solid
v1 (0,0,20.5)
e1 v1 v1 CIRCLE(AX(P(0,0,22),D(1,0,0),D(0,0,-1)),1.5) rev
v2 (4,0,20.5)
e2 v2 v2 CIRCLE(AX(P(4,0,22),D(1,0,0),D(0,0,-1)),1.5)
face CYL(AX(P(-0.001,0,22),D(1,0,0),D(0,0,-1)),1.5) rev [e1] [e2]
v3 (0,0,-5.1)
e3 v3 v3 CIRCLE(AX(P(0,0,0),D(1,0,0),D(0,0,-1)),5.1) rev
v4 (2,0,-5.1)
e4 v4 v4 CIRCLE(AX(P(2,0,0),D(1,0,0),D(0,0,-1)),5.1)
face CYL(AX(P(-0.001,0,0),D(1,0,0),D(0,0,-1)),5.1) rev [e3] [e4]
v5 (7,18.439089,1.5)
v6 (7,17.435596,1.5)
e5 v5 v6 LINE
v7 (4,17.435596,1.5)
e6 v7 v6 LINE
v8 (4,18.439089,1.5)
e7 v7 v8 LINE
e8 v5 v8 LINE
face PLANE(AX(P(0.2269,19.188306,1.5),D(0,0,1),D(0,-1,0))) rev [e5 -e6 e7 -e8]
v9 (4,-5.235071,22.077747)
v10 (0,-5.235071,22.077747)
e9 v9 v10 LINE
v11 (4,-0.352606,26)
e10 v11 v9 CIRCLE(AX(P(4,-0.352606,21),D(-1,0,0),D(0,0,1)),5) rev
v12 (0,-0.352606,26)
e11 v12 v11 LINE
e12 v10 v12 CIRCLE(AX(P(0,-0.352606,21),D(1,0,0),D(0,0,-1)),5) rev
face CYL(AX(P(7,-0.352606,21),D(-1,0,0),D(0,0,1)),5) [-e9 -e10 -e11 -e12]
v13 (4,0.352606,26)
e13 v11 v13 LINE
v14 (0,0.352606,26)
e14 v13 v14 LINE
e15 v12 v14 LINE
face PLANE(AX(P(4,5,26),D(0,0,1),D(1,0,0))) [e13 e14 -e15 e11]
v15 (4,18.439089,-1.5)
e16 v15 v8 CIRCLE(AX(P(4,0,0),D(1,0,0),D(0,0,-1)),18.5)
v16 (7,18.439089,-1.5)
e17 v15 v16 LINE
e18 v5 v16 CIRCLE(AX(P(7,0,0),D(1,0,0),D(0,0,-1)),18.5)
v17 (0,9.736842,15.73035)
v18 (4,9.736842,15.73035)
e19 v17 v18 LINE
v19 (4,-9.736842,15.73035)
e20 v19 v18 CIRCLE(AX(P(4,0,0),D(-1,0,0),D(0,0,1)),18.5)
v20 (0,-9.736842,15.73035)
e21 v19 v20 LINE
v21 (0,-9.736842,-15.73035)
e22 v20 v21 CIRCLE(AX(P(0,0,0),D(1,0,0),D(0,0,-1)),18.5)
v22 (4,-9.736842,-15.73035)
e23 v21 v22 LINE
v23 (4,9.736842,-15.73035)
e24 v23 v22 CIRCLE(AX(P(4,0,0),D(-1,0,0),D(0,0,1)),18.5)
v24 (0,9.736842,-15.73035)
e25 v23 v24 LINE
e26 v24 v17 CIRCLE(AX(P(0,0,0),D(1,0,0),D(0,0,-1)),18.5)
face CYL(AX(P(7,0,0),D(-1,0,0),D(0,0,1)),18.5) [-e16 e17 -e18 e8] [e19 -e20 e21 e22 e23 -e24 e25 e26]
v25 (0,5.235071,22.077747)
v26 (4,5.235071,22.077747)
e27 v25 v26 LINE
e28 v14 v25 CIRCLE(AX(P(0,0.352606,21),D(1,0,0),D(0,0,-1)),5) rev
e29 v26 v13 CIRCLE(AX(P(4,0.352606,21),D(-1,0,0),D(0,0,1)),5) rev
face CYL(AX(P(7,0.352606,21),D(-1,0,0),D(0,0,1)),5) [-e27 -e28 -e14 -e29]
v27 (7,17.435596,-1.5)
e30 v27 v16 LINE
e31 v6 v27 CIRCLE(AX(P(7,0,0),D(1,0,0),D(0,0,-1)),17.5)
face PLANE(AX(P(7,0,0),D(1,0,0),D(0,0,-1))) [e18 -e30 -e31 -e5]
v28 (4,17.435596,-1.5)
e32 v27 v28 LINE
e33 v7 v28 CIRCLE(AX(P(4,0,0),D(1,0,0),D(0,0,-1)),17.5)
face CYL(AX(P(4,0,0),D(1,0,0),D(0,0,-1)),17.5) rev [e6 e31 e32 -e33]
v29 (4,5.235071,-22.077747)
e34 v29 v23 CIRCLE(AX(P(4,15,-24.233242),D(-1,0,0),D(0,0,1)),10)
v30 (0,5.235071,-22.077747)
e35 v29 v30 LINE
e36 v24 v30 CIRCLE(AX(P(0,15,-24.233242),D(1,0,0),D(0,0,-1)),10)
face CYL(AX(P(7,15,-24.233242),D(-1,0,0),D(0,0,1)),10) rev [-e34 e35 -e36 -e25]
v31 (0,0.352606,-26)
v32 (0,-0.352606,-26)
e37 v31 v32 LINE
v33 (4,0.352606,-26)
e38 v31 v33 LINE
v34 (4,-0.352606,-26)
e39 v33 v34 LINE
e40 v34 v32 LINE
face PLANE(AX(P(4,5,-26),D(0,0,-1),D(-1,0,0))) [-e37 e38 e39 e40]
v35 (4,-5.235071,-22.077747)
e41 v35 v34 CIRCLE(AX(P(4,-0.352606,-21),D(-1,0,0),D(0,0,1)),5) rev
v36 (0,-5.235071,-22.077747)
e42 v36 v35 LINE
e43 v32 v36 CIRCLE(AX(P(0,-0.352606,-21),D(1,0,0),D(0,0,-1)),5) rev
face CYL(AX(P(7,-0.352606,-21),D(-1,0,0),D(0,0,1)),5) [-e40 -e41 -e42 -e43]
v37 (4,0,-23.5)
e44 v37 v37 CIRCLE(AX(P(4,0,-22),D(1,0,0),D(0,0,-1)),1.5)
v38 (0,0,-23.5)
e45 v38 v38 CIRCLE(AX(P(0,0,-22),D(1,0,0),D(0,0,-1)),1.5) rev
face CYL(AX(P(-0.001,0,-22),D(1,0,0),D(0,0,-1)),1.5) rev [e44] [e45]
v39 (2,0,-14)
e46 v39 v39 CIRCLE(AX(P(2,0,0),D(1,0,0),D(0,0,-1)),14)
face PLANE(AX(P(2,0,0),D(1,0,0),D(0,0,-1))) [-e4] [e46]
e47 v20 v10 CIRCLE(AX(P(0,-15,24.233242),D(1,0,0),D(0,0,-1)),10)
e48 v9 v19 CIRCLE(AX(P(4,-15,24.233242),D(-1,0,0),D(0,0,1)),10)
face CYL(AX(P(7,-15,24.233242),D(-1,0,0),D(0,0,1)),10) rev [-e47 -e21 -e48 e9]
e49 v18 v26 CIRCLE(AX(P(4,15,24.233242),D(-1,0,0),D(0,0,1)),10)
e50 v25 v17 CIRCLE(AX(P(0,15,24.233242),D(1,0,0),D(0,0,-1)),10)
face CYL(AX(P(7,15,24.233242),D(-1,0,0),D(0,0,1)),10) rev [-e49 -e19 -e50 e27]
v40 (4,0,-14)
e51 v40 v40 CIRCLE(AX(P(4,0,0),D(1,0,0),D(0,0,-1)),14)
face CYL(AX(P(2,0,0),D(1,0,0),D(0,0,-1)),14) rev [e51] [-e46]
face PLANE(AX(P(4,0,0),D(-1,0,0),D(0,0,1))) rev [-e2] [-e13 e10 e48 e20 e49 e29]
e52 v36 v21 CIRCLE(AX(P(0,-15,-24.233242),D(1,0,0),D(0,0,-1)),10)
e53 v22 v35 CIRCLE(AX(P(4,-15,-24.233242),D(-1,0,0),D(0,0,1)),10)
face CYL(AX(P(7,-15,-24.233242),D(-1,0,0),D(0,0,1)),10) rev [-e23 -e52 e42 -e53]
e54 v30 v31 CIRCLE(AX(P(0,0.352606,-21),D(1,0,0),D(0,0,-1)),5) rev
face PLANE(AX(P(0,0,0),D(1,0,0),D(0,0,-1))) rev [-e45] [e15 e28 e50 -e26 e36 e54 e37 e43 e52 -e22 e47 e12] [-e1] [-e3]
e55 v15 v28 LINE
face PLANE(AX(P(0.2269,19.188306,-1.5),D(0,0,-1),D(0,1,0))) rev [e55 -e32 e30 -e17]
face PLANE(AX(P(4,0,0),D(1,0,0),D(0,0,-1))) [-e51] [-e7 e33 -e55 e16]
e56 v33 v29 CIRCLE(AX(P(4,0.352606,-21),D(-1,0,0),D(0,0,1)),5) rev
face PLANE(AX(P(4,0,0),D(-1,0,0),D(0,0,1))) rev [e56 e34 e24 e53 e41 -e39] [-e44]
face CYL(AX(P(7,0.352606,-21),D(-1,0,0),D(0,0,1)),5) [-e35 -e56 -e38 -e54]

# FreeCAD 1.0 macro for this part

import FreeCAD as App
import Part
import Sketcher


def edges_at(feature, points):
    """Names of the edges that pass closest to the given points."""
    edges = feature.Shape.Edges
    near = lambda p: min(range(len(edges)), key=lambda i: edges[i].distToShape(Part.Vertex(*p))[0])
    return sorted({f"Edge{near(p) + 1}" for p in points})

doc = App.newDocument("Part")
params = doc.addObject("Spreadsheet::Sheet", "Params")
for row, (alias, value) in enumerate([
    ("sketch1_diameter", "37 mm"),
    ("pad1_length", "7 mm"),
    ("sketch2_width", "10 mm"),
    ("sketch2_height", "52 mm"),
    ("pad2_length", "4 mm"),
    ("sketch3_diameter", "35 mm"),
    ("pocket1_length", "3 mm"),
    ("sketch4_diameter", "28 mm"),
    ("pocket2_length", "2 mm"),
    ("sketch5_diameter", "10.2 mm"),
    ("sketch6_diameter", "3 mm"),
    ("sketch7_diameter", "3 mm"),
    ("fillet_radius", "10 mm"),
    ("fillet2_radius", "5 mm"),
    ("sketch8_height", "3 mm"),
    ("pocket6_length", "3 mm"),
], start=1):
    params.set(f"A{row}", alias)
    params.set(f"B{row}", "=" + value)
    params.setAlias(f"B{row}", alias)

body = doc.addObject("PartDesign::Body", "Body")

sketch1 = doc.addObject("Sketcher::SketchObject", "Sketch")
body.addObject(sketch1)
sketch1.AttachmentSupport = (doc.YZ_Plane, [""])
sketch1.MapMode = "FlatFace"
sketch1.addGeometry(Part.Circle(App.Vector(0, 0, 0), App.Vector(0, 0, 1), 18), False)
sketch1.addConstraint([
    Sketcher.Constraint("Coincident", 0, 3, -1, 1),
    Sketcher.Constraint("Diameter", 0, 37.0),
])
sketch1.setExpression("Constraints[1]", "Params.sketch1_diameter")
pad1 = doc.addObject("PartDesign::Pad", "Pad")
body.addObject(pad1)
pad1.Profile = sketch1
pad1.setExpression("Length", "Params.pad1_length")

sketch2 = doc.addObject("Sketcher::SketchObject", "Sketch001")
body.addObject(sketch2)
sketch2.AttachmentSupport = (doc.YZ_Plane, [""])
sketch2.MapMode = "FlatFace"
sketch2.addGeometry([
    Part.LineSegment(App.Vector(5, 26, 0), App.Vector(5, -26, 0)),
    Part.LineSegment(App.Vector(5, -26, 0), App.Vector(-5, -26, 0)),
    Part.LineSegment(App.Vector(-5, -26, 0), App.Vector(-5, 26, 0)),
    Part.LineSegment(App.Vector(-5, 26, 0), App.Vector(5, 26, 0)),
], False)
sketch2.addConstraint([
    Sketcher.Constraint("Coincident", 0, 2, 1, 1),
    Sketcher.Constraint("Coincident", 1, 2, 2, 1),
    Sketcher.Constraint("Coincident", 2, 2, 3, 1),
    Sketcher.Constraint("Coincident", 3, 2, 0, 1),
    Sketcher.Constraint("Vertical", 0),
    Sketcher.Constraint("Horizontal", 1),
    Sketcher.Constraint("Vertical", 2),
    Sketcher.Constraint("Horizontal", 3),
    Sketcher.Constraint("Symmetric", 0, 2, 2, 2, -1, 1),
    Sketcher.Constraint("DistanceX", 1, 2, 1, 1, 10.0),
    Sketcher.Constraint("DistanceY", 0, 2, 0, 1, 52.0),
])
sketch2.setExpression("Constraints[9]", "Params.sketch2_width")
sketch2.setExpression("Constraints[10]", "Params.sketch2_height")
pad2 = doc.addObject("PartDesign::Pad", "Pad001")
body.addObject(pad2)
pad2.Profile = sketch2
pad2.setExpression("Length", "Params.pad2_length")

sketch3 = doc.addObject("Sketcher::SketchObject", "Sketch002")
body.addObject(sketch3)
sketch3.AttachmentSupport = (doc.YZ_Plane, [""])
sketch3.MapMode = "FlatFace"
sketch3.AttachmentOffset = App.Placement(App.Vector(0, 0, 7), App.Rotation())
sketch3.addGeometry(Part.Circle(App.Vector(0, 0, 0), App.Vector(0, 0, 1), 18), False)
sketch3.addConstraint([
    Sketcher.Constraint("Coincident", 0, 3, -1, 1),
    Sketcher.Constraint("Diameter", 0, 35.0),
])
sketch3.setExpression("Constraints[1]", "Params.sketch3_diameter")
pocket1 = doc.addObject("PartDesign::Pocket", "Pocket")
body.addObject(pocket1)
pocket1.Profile = sketch3
pocket1.setExpression("Length", "Params.pocket1_length")

sketch4 = doc.addObject("Sketcher::SketchObject", "Sketch003")
body.addObject(sketch4)
sketch4.AttachmentSupport = (doc.YZ_Plane, [""])
sketch4.MapMode = "FlatFace"
sketch4.AttachmentOffset = App.Placement(App.Vector(0, 0, 4), App.Rotation())
sketch4.addGeometry(Part.Circle(App.Vector(0, 0, 0), App.Vector(0, 0, 1), 14), False)
sketch4.addConstraint([
    Sketcher.Constraint("Coincident", 0, 3, -1, 1),
    Sketcher.Constraint("Diameter", 0, 28.0),
])
sketch4.setExpression("Constraints[1]", "Params.sketch4_diameter")
pocket2 = doc.addObject("PartDesign::Pocket", "Pocket001")
body.addObject(pocket2)
pocket2.Profile = sketch4
pocket2.setExpression("Length", "Params.pocket2_length")

sketch5 = doc.addObject("Sketcher::SketchObject", "Sketch004")
body.addObject(sketch5)
sketch5.AttachmentSupport = (doc.YZ_Plane, [""])
sketch5.MapMode = "FlatFace"
sketch5.AttachmentOffset = App.Placement(App.Vector(0, 0, 2), App.Rotation())
sketch5.addGeometry(Part.Circle(App.Vector(0, 0, 0), App.Vector(0, 0, 1), 5), False)
sketch5.addConstraint([
    Sketcher.Constraint("Coincident", 0, 3, -1, 1),
    Sketcher.Constraint("Diameter", 0, 10.2),
])
sketch5.setExpression("Constraints[1]", "Params.sketch5_diameter")
pocket3 = doc.addObject("PartDesign::Pocket", "Pocket002")
body.addObject(pocket3)
pocket3.Profile = sketch5
pocket3.Type = "UpToFirst"

sketch6 = doc.addObject("Sketcher::SketchObject", "Sketch005")
body.addObject(sketch6)
sketch6.AttachmentSupport = (doc.YZ_Plane, [""])
sketch6.MapMode = "FlatFace"
sketch6.AttachmentOffset = App.Placement(App.Vector(0, 0, 4), App.Rotation())
sketch6.addGeometry(Part.Circle(App.Vector(0, 22, 0), App.Vector(0, 0, 1), 1.5), False)
sketch6.addConstraint([
    Sketcher.Constraint("PointOnObject", 0, 3, -2),
    Sketcher.Constraint("Diameter", 0, 3.0),
    Sketcher.Constraint("DistanceY", -1, 1, 0, 3, 22.0),
])
sketch6.setExpression("Constraints[1]", "Params.sketch6_diameter")
pocket4 = doc.addObject("PartDesign::Pocket", "Pocket003")
body.addObject(pocket4)
pocket4.Profile = sketch6
pocket4.Type = "UpToFirst"

sketch7 = doc.addObject("Sketcher::SketchObject", "Sketch006")
body.addObject(sketch7)
sketch7.AttachmentSupport = (doc.YZ_Plane, [""])
sketch7.MapMode = "FlatFace"
sketch7.AttachmentOffset = App.Placement(App.Vector(0, 0, 4), App.Rotation())
sketch7.addGeometry(Part.Circle(App.Vector(0, -22, 0), App.Vector(0, 0, 1), 1.5), False)
sketch7.addConstraint([
    Sketcher.Constraint("PointOnObject", 0, 3, -2),
    Sketcher.Constraint("Diameter", 0, 3.0),
    Sketcher.Constraint("DistanceY", 0, 3, -1, 1, 22.0),
])
sketch7.setExpression("Constraints[1]", "Params.sketch7_diameter")
pocket5 = doc.addObject("PartDesign::Pocket", "Pocket004")
body.addObject(pocket5)
pocket5.Profile = sketch7
pocket5.Type = "UpToFirst"
doc.recompute()

fillet = doc.addObject("PartDesign::Fillet", "Fillet")
body.addObject(fillet)
fillet.Base = (pocket5, edges_at(pocket5, [
    (2, 5, -17.812),
    (2, 5, 17.812),
    (2, -5, 17.812),
    (2, -5, -17.812),
]))
fillet.setExpression("Radius", "Params.fillet_radius")
doc.recompute()

fillet2 = doc.addObject("PartDesign::Fillet", "Fillet001")
body.addObject(fillet2)
fillet2.Base = (fillet, edges_at(fillet, [
    (2, 5, 26),
    (2, -5, 26),
    (2, -5, -26),
    (2, 5, -26),
]))
fillet2.setExpression("Radius", "Params.fillet2_radius")

sketch8 = doc.addObject("Sketcher::SketchObject", "Sketch007")
body.addObject(sketch8)
sketch8.AttachmentSupport = (doc.YZ_Plane, [""])
sketch8.MapMode = "FlatFace"
sketch8.AttachmentOffset = App.Placement(App.Vector(0, 0, 7), App.Rotation())
sketch8.addGeometry([
    Part.LineSegment(App.Vector(19.2, 1.5, 0), App.Vector(16.9, 1.5, 0)),
    Part.LineSegment(App.Vector(16.9, 1.5, 0), App.Vector(16.9, -1.5, 0)),
    Part.LineSegment(App.Vector(16.9, -1.5, 0), App.Vector(19.2, -1.5, 0)),
    Part.LineSegment(App.Vector(19.2, -1.5, 0), App.Vector(19.2, 1.5, 0)),
], False)
sketch8.addConstraint([
    Sketcher.Constraint("Coincident", 0, 2, 1, 1),
    Sketcher.Constraint("Coincident", 1, 2, 2, 1),
    Sketcher.Constraint("Coincident", 2, 2, 3, 1),
    Sketcher.Constraint("Coincident", 3, 2, 0, 1),
    Sketcher.Constraint("Horizontal", 0),
    Sketcher.Constraint("Vertical", 1),
    Sketcher.Constraint("Horizontal", 2),
    Sketcher.Constraint("Vertical", 3),
    Sketcher.Constraint("DistanceY", 1, 2, 1, 1, 3.0),
    Sketcher.Constraint("DistanceY", -1, 1, 0, 2, 1.5),
    Sketcher.Constraint("DistanceX", 0, 2, 0, 1, 2.288293),
    Sketcher.Constraint("DistanceX", -1, 1, 0, 2, 16.900013),
])
sketch8.setExpression("Constraints[8]", "Params.sketch8_height")
pocket6 = doc.addObject("PartDesign::Pocket", "Pocket005")
body.addObject(pocket6)
pocket6.Profile = sketch8
pocket6.setExpression("Length", "Params.pocket6_length")

doc.recompute()
